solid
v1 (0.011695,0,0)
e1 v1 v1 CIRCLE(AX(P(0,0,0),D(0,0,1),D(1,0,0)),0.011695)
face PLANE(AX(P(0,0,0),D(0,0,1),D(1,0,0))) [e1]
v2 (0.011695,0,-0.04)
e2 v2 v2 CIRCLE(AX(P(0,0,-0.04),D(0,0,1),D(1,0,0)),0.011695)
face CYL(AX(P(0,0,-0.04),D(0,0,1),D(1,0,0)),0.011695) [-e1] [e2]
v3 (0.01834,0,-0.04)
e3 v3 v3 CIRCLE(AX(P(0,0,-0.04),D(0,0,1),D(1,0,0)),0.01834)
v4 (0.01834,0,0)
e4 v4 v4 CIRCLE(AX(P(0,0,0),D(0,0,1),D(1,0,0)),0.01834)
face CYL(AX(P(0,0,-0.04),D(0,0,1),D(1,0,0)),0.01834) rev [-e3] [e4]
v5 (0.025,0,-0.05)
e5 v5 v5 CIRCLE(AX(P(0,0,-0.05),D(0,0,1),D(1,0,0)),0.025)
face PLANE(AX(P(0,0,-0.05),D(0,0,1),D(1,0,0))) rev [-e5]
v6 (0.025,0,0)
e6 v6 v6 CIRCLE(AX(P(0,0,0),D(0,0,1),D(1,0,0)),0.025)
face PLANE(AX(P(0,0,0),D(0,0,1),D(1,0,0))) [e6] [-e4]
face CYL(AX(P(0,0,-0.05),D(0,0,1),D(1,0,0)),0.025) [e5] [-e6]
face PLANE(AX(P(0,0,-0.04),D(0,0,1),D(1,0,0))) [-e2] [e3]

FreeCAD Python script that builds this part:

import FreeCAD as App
import Part
import Sketcher
from FreeCAD import Vector
Q = App.Units.Quantity

doc = App.newDocument("Part")
body = doc.addObject("PartDesign::Body", "Body")

sketch1 = body.newObject("Sketcher::SketchObject", "Sketch")
sketch1.AttachmentSupport = (doc.getObject("XY_Plane"), [""])
sketch1.MapMode = "FlatFace"
sketch1.addGeometry(Part.Circle(Vector(0, 0, 0), Vector(0, 0, 1), 0.025), False)
sketch1.addConstraint(Sketcher.Constraint("Coincident", 0, 3, -1, 1))
sketch1.addConstraint(Sketcher.Constraint("Diameter", 0, Q("0.05 mm")))
pad1 = body.newObject("PartDesign::Pad", "Pad")
pad1.Profile = sketch1
pad1.Length = 0.05
pad1.Reversed = True

sketch2 = body.newObject("Sketcher::SketchObject", "Sketch001")
sketch2.AttachmentSupport = (doc.getObject("XY_Plane"), [""])
sketch2.MapMode = "FlatFace"
sketch2.addGeometry(Part.Circle(Vector(0, 0, 0), Vector(0, 0, 1), 0.018), False)
sketch2.addGeometry(Part.Circle(Vector(0, 0, 0), Vector(0, 0, 1), 0.012), False)
sketch2.addConstraint(Sketcher.Constraint("Coincident", 0, 3, -1, 1))
sketch2.addConstraint(Sketcher.Constraint("Coincident", 1, 3, -1, 1))
sketch2.addConstraint(Sketcher.Constraint("Diameter", 0, Q("0.036681 mm")))
sketch2.addConstraint(Sketcher.Constraint("Diameter", 1, Q("0.02339 mm")))
pocket1 = body.newObject("PartDesign::Pocket", "Pocket")
pocket1.Profile = sketch2
pocket1.Length = 0.04

doc.recompute()
